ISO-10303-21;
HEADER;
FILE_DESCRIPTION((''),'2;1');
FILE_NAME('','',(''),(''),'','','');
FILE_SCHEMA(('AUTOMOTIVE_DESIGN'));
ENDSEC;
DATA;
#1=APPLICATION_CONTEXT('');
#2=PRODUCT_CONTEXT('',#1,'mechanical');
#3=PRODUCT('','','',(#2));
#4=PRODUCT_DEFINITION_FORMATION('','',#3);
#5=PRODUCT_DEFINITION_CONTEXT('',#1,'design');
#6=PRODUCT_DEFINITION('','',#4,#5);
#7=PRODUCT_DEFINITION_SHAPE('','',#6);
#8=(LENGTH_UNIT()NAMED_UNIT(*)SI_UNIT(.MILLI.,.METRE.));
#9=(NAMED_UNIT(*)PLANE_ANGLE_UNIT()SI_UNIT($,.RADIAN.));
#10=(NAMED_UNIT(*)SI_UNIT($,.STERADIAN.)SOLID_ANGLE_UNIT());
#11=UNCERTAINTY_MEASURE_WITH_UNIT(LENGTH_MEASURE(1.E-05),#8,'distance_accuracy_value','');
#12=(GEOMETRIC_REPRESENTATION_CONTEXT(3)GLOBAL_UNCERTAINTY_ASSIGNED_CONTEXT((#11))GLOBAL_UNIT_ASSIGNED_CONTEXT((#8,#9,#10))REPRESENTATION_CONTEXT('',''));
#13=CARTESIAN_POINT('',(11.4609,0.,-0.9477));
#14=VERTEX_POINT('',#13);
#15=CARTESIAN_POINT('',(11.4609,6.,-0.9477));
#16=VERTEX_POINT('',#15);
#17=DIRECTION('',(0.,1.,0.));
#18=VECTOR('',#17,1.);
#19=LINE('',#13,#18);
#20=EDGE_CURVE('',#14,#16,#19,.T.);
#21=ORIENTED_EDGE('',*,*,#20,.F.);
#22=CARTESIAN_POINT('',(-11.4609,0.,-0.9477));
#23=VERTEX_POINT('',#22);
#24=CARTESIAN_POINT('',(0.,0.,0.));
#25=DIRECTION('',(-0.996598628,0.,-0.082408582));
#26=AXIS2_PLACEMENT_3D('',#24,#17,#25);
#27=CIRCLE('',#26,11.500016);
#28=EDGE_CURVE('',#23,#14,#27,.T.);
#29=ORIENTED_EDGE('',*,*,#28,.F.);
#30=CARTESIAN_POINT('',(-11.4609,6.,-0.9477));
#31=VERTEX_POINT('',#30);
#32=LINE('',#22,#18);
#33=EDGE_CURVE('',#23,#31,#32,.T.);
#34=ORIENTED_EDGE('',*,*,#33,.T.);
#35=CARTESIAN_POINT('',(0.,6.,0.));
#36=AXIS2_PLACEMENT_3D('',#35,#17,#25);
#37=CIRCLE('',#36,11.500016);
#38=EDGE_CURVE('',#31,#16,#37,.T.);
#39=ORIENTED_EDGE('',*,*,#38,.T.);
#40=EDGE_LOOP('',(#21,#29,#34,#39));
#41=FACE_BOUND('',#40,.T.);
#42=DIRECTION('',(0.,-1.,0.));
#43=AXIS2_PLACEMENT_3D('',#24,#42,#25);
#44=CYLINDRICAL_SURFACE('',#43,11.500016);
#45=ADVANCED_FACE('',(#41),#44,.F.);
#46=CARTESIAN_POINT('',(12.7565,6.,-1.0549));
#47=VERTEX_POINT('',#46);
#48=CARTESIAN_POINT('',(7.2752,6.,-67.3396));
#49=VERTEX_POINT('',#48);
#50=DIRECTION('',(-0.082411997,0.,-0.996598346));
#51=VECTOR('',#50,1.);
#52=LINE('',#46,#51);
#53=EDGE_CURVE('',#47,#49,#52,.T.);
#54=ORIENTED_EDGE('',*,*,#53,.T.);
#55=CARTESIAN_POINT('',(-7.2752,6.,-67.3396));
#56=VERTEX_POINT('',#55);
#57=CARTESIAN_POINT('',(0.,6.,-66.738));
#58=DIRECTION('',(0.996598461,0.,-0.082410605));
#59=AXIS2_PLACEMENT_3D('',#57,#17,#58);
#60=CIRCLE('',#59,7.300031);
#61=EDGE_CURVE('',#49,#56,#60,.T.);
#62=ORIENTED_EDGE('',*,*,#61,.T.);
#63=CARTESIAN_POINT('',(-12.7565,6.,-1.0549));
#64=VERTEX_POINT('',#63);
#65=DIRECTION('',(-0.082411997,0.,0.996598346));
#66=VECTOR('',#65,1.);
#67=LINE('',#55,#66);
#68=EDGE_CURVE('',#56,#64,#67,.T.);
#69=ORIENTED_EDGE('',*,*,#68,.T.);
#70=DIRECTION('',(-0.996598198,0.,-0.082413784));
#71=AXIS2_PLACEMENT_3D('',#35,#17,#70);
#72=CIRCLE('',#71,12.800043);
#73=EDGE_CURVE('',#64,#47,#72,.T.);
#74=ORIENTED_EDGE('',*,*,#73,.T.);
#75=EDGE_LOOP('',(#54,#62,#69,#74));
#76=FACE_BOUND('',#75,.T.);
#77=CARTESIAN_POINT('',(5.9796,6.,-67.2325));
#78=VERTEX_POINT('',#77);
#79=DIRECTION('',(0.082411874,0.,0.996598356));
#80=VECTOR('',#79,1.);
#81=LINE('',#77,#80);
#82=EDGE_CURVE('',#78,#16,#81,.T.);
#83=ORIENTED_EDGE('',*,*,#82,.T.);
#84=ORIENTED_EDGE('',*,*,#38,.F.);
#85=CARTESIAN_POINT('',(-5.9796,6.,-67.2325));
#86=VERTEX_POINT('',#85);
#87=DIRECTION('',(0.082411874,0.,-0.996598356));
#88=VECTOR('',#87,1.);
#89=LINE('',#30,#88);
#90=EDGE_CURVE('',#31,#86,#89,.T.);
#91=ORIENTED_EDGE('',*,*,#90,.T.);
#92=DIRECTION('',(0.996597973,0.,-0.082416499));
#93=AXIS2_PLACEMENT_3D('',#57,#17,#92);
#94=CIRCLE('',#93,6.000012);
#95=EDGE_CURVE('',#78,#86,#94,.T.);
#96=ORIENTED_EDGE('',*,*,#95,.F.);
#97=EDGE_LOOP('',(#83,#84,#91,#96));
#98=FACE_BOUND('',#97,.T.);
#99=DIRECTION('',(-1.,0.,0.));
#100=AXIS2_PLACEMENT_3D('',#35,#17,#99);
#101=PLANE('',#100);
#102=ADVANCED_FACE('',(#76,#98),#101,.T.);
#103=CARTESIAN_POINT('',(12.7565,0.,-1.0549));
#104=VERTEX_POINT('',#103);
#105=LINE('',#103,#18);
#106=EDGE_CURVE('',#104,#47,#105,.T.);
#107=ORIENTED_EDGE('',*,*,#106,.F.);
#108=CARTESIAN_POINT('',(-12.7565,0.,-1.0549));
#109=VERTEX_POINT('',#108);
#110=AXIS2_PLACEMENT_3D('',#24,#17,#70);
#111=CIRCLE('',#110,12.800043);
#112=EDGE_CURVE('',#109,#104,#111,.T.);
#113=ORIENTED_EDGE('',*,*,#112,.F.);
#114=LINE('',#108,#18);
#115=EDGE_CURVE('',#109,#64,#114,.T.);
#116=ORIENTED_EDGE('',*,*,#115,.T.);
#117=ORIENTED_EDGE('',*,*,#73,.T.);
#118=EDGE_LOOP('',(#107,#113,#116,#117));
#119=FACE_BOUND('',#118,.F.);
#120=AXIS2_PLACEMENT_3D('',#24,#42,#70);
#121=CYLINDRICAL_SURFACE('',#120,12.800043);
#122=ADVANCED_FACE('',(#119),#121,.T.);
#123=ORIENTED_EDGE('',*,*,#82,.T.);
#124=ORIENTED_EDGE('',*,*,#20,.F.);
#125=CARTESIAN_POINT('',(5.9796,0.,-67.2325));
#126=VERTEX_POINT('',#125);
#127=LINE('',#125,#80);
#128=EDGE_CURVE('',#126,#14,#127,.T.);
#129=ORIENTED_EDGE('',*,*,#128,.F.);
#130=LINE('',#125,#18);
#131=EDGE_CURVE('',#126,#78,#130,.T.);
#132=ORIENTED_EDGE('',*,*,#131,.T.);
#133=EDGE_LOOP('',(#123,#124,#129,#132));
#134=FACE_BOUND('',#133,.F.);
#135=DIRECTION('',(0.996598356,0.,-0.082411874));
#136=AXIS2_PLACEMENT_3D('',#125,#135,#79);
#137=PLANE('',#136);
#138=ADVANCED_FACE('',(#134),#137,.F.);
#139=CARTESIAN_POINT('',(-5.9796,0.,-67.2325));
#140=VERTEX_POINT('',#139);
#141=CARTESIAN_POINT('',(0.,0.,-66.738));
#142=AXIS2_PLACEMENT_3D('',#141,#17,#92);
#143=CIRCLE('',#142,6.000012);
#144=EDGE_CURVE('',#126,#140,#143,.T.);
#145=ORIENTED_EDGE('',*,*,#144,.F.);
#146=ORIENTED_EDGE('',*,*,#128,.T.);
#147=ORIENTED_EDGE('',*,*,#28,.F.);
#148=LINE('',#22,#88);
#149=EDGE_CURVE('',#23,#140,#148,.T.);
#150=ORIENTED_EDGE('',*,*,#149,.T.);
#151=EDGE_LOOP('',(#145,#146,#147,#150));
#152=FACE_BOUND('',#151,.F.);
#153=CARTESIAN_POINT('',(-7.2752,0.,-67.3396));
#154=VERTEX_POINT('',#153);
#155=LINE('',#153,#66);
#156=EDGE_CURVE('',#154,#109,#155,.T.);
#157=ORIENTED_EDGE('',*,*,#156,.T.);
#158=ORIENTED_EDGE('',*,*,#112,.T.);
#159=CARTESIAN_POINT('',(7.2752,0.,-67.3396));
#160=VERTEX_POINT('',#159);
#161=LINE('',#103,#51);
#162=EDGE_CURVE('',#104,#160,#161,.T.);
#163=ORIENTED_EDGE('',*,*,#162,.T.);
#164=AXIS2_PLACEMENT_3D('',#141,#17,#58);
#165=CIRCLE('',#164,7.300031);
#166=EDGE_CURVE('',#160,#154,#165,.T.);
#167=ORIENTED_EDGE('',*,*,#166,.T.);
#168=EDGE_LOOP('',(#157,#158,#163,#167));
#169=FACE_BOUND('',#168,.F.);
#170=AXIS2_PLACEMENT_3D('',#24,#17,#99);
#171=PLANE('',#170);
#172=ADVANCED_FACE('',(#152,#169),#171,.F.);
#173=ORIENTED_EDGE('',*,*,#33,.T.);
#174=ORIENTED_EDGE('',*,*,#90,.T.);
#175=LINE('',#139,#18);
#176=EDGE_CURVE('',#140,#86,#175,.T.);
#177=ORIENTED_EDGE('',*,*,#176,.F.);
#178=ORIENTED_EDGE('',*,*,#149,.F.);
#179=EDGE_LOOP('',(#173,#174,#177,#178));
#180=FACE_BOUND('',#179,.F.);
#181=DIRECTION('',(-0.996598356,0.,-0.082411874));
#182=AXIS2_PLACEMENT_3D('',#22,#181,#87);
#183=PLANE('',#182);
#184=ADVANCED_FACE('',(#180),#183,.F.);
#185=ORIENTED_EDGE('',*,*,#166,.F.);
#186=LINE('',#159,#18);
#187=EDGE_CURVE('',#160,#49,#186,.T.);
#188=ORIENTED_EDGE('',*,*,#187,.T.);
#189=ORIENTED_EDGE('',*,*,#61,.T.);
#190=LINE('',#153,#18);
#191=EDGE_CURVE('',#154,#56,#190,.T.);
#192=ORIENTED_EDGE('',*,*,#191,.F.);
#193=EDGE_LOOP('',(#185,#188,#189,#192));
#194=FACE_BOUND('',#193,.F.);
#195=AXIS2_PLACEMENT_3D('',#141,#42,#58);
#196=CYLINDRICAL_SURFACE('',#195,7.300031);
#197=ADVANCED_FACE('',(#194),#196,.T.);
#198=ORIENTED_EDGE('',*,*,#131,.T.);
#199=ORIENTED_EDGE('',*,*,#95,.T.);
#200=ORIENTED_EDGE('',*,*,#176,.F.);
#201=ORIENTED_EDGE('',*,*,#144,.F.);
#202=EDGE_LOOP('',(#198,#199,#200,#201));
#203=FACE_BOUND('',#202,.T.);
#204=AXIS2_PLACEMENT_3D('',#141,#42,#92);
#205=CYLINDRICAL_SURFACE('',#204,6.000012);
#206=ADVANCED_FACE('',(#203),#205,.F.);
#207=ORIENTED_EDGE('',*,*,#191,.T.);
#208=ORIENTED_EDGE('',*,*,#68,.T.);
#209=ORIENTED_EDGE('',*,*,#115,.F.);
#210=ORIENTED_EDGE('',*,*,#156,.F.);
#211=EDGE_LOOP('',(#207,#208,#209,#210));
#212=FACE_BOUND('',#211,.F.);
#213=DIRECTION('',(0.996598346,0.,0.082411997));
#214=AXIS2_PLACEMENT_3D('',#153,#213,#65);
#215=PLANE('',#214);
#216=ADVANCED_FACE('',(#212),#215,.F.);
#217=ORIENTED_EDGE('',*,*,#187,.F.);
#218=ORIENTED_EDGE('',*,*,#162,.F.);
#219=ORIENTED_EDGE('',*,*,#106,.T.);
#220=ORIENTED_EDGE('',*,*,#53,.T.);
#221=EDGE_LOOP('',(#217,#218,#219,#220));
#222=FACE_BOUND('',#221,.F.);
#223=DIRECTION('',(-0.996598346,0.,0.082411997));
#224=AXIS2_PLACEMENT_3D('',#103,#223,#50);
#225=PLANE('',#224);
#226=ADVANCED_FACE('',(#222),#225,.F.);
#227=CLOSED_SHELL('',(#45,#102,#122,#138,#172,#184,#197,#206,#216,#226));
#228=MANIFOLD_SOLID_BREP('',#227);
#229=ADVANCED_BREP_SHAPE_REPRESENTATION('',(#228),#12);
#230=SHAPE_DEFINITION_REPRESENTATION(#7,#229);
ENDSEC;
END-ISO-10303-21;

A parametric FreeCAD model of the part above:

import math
import FreeCAD as App
import Part
import Sketcher
Q = App.Units.Quantity

doc = App.newDocument("Part")
params = doc.addObject("Spreadsheet::Sheet", "Params")
for row, (alias, value) in enumerate([
    ("sketch1_radius", "6 mm"),
    ("sketch1_radius2", "11.5 mm"),
    ("sketch1_radius3", "7.3 mm"),
    ("pad1_length", "6 mm"),
], start=1):
    params.set(f"A{row}", alias)
    params.set(f"B{row}", "=" + value)
    params.setAlias(f"B{row}", alias)

body = doc.addObject("PartDesign::Body", "Body")

# Sketch on XZ plane
sketch1 = body.newObject("Sketcher::SketchObject", "Sketch")
sketch1.AttachmentSupport = (doc.getObject("XZ_Plane"), [""])
sketch1.MapMode = "FlatFace"
sketch1.addGeometry([
    Part.ArcOfCircle(Part.Circle(App.Vector(0, -66.738, 0), App.Vector(0, 0, 1), 7.300031), math.radians(-175.272859), math.radians(-4.727141)),  # 0
    Part.LineSegment(App.Vector(-7.2752, -67.3396, 0), App.Vector(-12.7565, -1.0549, 0)),  # 1
    Part.ArcOfCircle(Part.Circle(App.Vector(0, 0, 0), App.Vector(0, 0, 1), 12.800043), math.radians(-4.727324), math.radians(184.727324)),  # 2
    Part.LineSegment(App.Vector(12.7565, -1.0549, 0), App.Vector(7.2752, -67.3396, 0)),  # 3
    Part.ArcOfCircle(Part.Circle(App.Vector(0, 0, 0), App.Vector(0, 0, 1), 11.500016), math.radians(-4.727025), math.radians(184.727025)),  # 4
    Part.LineSegment(App.Vector(-11.4609, -0.9477, 0), App.Vector(-5.9796, -67.2325, 0)),  # 5
    Part.ArcOfCircle(Part.Circle(App.Vector(0, -66.738, 0), App.Vector(0, 0, 1), 6.000012), math.radians(-175.27252), math.radians(-4.72748)),  # 6
    Part.LineSegment(App.Vector(5.9796, -67.2325, 0), App.Vector(11.4609, -0.9477, 0)),  # 7
], False)
sketch1.addConstraint([
    Sketcher.Constraint("Tangent", 0, 1, 1, 1),
    Sketcher.Constraint("Tangent", 1, 2, 2, 2),
    Sketcher.Constraint("Tangent", 2, 1, 3, 1),
    Sketcher.Constraint("Tangent", 3, 2, 0, 2),
    Sketcher.Constraint("Tangent", 4, 2, 5, 1),
    Sketcher.Constraint("Tangent", 5, 2, 6, 1),
    Sketcher.Constraint("Tangent", 6, 2, 7, 1),
    Sketcher.Constraint("Tangent", 7, 2, 4, 1),
    Sketcher.Constraint("Coincident", 2, 3, -1, 1),
    Sketcher.Constraint("Coincident", 4, 3, -1, 1),
    Sketcher.Constraint("Coincident", 6, 3, 0, 3),
    Sketcher.Constraint("PointOnObject", 0, 3, -2),
    Sketcher.Constraint("Parallel", 1, 5),
    Sketcher.Constraint("Radius", 6, Q("6 mm")),
    Sketcher.Constraint("Radius", 4, Q("11.5 mm")),
    Sketcher.Constraint("Radius", 0, Q("7.3 mm")),
    Sketcher.Constraint("Distance", 1, Q("66.511 mm")),
])
sketch1.setExpression("Constraints[13]", "Params.sketch1_radius")
sketch1.setExpression("Constraints[14]", "Params.sketch1_radius2")
sketch1.setExpression("Constraints[15]", "Params.sketch1_radius3")
pad1 = body.newObject("PartDesign::Pad", "Pad")
pad1.Profile = sketch1
pad1.setExpression("Length", "Params.pad1_length")
pad1.Reversed = True

doc.recompute()
